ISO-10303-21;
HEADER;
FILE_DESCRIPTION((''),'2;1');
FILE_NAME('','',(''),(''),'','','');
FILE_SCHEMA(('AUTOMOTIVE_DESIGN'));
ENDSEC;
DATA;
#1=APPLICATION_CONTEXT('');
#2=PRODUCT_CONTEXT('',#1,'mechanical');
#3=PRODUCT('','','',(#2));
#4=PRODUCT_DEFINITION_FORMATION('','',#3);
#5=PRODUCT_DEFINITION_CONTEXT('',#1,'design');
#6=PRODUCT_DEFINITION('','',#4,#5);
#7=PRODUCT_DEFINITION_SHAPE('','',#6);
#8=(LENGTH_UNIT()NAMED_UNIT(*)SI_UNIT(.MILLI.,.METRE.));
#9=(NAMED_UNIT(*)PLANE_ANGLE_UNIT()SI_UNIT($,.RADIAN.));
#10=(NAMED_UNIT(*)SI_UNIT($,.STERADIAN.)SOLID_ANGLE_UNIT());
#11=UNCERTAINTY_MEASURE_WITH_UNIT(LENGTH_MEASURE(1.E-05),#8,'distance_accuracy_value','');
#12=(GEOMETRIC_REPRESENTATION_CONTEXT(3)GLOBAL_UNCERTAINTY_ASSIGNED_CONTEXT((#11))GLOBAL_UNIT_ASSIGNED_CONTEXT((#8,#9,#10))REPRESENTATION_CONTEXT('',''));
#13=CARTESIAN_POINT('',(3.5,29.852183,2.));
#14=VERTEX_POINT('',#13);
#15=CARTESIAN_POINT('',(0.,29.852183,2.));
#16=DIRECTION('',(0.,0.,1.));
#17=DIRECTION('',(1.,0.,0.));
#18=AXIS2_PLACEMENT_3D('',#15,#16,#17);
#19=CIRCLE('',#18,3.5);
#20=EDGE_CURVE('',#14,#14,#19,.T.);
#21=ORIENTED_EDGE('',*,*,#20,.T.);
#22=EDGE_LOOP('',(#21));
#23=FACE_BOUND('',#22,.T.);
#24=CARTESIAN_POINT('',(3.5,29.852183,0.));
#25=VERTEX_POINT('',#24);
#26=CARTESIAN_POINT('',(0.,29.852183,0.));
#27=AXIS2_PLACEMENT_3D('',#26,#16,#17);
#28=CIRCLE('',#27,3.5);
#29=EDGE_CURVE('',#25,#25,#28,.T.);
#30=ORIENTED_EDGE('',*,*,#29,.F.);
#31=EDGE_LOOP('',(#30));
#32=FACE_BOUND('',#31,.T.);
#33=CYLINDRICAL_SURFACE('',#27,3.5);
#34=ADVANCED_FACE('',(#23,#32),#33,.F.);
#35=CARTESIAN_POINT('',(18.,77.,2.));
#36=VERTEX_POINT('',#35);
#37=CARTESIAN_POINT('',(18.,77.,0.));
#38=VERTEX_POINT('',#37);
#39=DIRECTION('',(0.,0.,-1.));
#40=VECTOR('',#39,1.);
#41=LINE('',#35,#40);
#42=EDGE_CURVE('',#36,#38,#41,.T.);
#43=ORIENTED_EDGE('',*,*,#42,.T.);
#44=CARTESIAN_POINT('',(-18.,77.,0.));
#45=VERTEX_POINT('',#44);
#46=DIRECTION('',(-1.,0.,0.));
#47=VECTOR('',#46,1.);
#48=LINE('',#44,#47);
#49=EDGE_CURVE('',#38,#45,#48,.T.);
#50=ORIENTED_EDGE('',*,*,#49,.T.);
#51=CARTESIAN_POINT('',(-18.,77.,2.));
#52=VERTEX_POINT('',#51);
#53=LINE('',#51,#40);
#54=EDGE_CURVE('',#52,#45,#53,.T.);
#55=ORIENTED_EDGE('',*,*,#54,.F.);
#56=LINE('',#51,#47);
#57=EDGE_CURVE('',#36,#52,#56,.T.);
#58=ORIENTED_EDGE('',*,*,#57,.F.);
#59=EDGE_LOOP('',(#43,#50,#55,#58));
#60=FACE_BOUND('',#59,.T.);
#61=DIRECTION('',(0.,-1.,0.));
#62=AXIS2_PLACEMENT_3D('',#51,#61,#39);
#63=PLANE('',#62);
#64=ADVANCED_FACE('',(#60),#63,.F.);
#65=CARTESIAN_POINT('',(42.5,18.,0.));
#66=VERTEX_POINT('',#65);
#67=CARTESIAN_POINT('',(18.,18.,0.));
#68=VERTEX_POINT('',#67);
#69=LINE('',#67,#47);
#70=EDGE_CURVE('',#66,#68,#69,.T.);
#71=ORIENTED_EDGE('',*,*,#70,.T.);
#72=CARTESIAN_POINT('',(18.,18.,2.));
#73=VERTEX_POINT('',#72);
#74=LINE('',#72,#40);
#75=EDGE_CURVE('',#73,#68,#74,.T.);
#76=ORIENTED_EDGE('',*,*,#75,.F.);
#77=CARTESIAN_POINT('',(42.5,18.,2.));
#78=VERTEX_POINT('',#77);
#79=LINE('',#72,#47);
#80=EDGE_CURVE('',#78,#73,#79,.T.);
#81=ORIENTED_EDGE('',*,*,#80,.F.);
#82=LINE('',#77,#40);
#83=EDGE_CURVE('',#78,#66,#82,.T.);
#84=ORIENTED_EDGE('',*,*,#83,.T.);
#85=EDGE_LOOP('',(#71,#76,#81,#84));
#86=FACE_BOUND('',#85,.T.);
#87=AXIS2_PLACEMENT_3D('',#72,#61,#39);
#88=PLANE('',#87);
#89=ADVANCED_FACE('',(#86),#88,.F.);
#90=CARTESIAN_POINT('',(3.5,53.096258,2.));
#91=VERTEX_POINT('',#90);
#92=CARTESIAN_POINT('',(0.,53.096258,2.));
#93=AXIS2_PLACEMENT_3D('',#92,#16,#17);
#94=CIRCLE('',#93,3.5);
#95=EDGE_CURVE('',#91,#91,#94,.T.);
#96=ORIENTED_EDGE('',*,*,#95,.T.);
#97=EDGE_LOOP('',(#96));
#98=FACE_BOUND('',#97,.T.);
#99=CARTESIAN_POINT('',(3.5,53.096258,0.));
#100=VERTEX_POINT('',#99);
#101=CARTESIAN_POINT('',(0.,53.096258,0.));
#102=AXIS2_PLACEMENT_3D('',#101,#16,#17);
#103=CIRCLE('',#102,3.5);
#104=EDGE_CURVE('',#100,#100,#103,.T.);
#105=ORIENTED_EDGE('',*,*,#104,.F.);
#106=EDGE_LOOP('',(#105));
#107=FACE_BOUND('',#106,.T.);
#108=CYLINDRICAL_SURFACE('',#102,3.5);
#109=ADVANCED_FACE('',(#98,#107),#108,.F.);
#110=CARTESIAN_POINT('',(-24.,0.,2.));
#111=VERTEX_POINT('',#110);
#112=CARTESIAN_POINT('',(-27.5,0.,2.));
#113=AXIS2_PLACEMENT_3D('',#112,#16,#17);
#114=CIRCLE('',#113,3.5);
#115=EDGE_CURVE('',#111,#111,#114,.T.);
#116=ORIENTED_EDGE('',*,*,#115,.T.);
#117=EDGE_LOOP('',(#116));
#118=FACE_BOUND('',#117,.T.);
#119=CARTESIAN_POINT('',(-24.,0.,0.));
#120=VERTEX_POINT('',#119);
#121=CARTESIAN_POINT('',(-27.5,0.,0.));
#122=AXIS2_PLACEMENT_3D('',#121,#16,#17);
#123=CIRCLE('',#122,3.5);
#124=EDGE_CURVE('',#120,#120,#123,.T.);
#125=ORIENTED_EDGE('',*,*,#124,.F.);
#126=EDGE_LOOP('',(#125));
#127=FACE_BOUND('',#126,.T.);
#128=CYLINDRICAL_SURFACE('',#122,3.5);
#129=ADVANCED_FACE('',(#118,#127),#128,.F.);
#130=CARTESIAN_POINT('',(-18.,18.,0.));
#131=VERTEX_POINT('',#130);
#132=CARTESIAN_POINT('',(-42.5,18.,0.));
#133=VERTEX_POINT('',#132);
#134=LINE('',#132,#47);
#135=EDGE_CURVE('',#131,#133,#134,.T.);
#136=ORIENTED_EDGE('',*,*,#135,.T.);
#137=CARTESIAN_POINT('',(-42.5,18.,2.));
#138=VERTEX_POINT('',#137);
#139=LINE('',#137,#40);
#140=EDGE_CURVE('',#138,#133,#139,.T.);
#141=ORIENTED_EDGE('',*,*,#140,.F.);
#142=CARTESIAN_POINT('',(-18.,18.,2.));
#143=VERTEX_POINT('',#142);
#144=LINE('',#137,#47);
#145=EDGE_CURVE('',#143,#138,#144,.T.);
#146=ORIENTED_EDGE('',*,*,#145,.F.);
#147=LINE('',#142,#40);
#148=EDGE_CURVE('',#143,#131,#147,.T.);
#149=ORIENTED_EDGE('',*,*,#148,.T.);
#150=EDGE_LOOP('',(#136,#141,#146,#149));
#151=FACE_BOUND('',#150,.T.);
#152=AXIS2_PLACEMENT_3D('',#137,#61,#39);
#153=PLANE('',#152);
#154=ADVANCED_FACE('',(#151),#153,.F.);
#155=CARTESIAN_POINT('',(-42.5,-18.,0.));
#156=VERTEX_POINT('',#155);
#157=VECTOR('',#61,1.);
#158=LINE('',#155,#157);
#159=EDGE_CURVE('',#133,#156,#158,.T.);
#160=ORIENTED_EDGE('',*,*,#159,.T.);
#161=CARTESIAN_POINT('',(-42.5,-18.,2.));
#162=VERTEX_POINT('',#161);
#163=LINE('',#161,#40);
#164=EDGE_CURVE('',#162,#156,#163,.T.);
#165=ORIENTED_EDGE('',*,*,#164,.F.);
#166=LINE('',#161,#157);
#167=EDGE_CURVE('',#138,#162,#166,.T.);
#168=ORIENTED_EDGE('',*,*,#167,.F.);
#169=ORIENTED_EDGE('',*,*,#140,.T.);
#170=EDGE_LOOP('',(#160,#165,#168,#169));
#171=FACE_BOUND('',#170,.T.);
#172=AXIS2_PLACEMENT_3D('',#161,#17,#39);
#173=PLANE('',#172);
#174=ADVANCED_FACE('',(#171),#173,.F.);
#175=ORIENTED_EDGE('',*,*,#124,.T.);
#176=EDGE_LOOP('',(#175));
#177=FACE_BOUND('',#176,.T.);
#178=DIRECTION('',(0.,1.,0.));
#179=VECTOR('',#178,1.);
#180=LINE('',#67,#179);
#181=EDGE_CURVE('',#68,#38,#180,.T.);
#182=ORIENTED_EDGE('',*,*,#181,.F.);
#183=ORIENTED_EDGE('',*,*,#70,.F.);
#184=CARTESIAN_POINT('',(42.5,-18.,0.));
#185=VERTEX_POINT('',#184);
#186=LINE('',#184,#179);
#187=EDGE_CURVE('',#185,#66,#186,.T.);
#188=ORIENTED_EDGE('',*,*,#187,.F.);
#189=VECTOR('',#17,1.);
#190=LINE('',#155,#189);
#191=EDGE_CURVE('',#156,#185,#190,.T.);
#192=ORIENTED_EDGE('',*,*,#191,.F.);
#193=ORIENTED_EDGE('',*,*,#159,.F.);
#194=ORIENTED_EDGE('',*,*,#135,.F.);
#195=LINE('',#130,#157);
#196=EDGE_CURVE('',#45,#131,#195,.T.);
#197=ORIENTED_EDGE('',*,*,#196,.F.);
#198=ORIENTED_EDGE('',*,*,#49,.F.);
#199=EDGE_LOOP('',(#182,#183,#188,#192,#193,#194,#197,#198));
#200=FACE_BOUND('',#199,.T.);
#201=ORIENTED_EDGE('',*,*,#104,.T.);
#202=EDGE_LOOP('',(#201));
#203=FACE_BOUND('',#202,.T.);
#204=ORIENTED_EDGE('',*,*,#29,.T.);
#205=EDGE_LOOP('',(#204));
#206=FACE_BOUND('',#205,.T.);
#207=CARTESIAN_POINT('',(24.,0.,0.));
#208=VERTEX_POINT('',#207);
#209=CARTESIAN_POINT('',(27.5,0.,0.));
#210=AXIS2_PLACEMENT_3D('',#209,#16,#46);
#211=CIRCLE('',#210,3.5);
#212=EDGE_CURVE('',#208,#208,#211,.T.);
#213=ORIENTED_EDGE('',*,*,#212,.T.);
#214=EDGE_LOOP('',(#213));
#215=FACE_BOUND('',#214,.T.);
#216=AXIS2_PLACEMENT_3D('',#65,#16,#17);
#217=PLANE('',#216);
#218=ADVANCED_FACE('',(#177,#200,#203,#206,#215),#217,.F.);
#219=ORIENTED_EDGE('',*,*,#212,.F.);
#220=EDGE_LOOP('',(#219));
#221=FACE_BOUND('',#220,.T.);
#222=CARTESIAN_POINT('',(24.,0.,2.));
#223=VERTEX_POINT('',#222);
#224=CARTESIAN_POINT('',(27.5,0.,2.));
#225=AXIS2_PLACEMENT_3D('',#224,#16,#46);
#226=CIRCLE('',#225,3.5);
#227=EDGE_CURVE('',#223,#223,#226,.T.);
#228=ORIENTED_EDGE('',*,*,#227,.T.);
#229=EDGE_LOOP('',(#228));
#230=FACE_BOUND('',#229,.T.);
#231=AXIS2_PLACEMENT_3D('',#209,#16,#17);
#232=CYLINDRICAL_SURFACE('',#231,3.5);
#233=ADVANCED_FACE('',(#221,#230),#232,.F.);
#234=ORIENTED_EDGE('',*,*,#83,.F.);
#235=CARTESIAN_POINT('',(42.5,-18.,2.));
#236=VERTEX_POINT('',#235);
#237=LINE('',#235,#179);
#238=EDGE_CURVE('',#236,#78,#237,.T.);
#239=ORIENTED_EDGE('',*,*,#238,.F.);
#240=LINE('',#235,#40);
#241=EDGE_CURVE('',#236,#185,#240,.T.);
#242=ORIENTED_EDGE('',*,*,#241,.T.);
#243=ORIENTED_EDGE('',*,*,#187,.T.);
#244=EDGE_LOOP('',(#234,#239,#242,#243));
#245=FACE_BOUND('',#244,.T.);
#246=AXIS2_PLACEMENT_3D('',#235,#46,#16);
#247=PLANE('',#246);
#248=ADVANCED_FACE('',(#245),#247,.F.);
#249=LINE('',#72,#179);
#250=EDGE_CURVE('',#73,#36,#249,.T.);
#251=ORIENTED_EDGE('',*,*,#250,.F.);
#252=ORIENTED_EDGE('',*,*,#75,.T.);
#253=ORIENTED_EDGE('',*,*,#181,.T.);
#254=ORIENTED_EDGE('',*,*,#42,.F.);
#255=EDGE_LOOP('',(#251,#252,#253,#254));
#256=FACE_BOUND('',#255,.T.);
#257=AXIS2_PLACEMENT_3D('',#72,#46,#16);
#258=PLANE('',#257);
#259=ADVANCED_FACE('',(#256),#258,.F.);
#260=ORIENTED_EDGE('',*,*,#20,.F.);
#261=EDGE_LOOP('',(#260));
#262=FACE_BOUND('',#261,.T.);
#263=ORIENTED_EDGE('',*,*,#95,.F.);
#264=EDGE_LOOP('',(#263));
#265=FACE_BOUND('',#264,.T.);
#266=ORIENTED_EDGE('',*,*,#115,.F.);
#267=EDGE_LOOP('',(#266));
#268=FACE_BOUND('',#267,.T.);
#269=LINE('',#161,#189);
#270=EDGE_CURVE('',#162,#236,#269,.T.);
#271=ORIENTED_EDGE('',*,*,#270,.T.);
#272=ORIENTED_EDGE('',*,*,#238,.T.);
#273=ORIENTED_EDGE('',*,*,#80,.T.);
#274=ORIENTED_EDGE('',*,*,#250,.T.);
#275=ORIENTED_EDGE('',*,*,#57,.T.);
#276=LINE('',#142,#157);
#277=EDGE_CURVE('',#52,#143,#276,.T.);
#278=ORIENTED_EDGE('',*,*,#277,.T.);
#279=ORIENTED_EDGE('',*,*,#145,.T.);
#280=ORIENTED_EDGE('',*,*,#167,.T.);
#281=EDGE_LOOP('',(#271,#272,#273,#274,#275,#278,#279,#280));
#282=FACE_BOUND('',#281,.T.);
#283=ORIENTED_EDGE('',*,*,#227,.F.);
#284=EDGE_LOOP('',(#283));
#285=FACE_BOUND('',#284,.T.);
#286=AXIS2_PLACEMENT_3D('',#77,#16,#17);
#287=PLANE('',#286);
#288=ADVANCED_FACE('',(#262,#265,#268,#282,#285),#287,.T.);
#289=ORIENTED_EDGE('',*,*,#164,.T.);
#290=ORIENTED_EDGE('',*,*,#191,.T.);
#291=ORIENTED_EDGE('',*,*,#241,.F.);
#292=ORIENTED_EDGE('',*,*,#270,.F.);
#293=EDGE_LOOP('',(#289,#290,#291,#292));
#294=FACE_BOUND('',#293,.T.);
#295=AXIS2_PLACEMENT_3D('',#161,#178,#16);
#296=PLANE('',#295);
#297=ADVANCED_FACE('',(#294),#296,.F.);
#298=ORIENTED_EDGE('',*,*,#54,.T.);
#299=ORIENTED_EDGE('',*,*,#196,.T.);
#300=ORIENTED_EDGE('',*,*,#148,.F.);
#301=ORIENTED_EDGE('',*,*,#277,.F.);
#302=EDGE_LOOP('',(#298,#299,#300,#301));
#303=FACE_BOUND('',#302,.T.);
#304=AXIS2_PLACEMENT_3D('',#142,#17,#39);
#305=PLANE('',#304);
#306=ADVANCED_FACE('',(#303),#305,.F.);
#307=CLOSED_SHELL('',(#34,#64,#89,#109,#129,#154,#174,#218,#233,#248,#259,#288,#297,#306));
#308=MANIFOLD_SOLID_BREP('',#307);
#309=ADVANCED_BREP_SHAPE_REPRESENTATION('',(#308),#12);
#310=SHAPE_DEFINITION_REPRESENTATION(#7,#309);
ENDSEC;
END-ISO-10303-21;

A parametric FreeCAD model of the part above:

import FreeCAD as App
import Part
import Sketcher
from FreeCAD import Vector

doc = App.newDocument("Part")
body = doc.addObject("PartDesign::Body", "Body")

# Sketch on XY plane
sketch1 = doc.addObject("Sketcher::SketchObject", "Sketch")
body.addObject(sketch1)
sketch1.AttachmentSupport = (doc.XY_Plane, [""])
sketch1.MapMode = "FlatFace"
sketch1.addGeometry([
    Part.LineSegment(Vector(-42.5, -18, 0), Vector(42.5, -18, 0)),  # 0
    Part.LineSegment(Vector(42.5, -18, 0), Vector(42.5, 18, 0)),  # 1
    Part.LineSegment(Vector(42.5, 18, 0), Vector(18, 18, 0)),  # 2
    Part.LineSegment(Vector(18, 18, 0), Vector(18, 77, 0)),  # 3
    Part.LineSegment(Vector(18, 77, 0), Vector(-18, 77, 0)),  # 4
    Part.LineSegment(Vector(-18, 77, 0), Vector(-18, 18, 0)),  # 5
    Part.LineSegment(Vector(-18, 18, 0), Vector(-42.5, 18, 0)),  # 6
    Part.LineSegment(Vector(-42.5, 18, 0), Vector(-42.5, -18, 0)),  # 7
], False)
sketch1.addConstraint([
    Sketcher.Constraint("Coincident", 0, 2, 1, 1),
    Sketcher.Constraint("Coincident", 1, 2, 2, 1),
    Sketcher.Constraint("Coincident", 2, 2, 3, 1),
    Sketcher.Constraint("Coincident", 3, 2, 4, 1),
    Sketcher.Constraint("Coincident", 4, 2, 5, 1),
    Sketcher.Constraint("Coincident", 5, 2, 6, 1),
    Sketcher.Constraint("Coincident", 6, 2, 7, 1),
    Sketcher.Constraint("Coincident", 7, 2, 0, 1),
    Sketcher.Constraint("Horizontal", 0),
    Sketcher.Constraint("Vertical", 1),
    Sketcher.Constraint("Horizontal", 2),
    Sketcher.Constraint("Vertical", 3),
    Sketcher.Constraint("Horizontal", 4),
    Sketcher.Constraint("Vertical", 5),
    Sketcher.Constraint("Horizontal", 6),
    Sketcher.Constraint("Vertical", 7),
    Sketcher.Constraint("Symmetric", 0, 2, 6, 2, -1, 1),
    Sketcher.Constraint("Symmetric", 2, 2, 5, 2, -2),
    Sketcher.Constraint("Equal", 4, 1),
    Sketcher.Constraint("DistanceX", 0, 1, 0, 2, 85.0),
    Sketcher.Constraint("DistanceX", 4, 2, 4, 1, 36.0),
    Sketcher.Constraint("DistanceY", 3, 1, 3, 2, 59.0),
])
pad1 = doc.addObject("PartDesign::Pad", "Pad")
body.addObject(pad1)
pad1.Profile = sketch1
pad1.Length = 2

# Sketch on XY plane
sketch2 = doc.addObject("Sketcher::SketchObject", "Sketch001")
body.addObject(sketch2)
sketch2.AttachmentSupport = (doc.XY_Plane, [""])
sketch2.MapMode = "FlatFace"
sketch2.AttachmentOffset = App.Placement(Vector(0, 0, 2), App.Rotation())
sketch2.addGeometry([
    Part.Circle(Vector(0, 53.096258, 0), Vector(0, 0, 1), 3.5),
    Part.Circle(Vector(0, 29.852183, 0), Vector(0, 0, 1), 3.5),
    Part.Circle(Vector(-27.5, 0, 0), Vector(0, 0, 1), 3.5),
    Part.Circle(Vector(27.5, 0, 0), Vector(0, 0, 1), 3.5),
], False)
sketch2.addConstraint([
    Sketcher.Constraint("Equal", 0, 1),
    Sketcher.Constraint("Equal", 1, 2),
    Sketcher.Constraint("Equal", 2, 3),
    Sketcher.Constraint("Symmetric", 2, 3, 3, 3, -1, 1),
    Sketcher.Constraint("PointOnObject", 0, 3, -2),
    Sketcher.Constraint("PointOnObject", 1, 3, -2),
    Sketcher.Constraint("PointOnObject", 2, 3, -1),
    Sketcher.Constraint("Diameter", 0, 7.0),
    Sketcher.Constraint("DistanceX", 2, 3, 3, 3, 55.0),
    Sketcher.Constraint("DistanceY", -1, 1, 0, 3, 53.096258),
    Sketcher.Constraint("DistanceY", -1, 1, 1, 3, 29.852183),
])
pocket1 = doc.addObject("PartDesign::Pocket", "Pocket")
body.addObject(pocket1)
pocket1.Profile = sketch2
pocket1.Type = "ThroughAll"

doc.recompute()
